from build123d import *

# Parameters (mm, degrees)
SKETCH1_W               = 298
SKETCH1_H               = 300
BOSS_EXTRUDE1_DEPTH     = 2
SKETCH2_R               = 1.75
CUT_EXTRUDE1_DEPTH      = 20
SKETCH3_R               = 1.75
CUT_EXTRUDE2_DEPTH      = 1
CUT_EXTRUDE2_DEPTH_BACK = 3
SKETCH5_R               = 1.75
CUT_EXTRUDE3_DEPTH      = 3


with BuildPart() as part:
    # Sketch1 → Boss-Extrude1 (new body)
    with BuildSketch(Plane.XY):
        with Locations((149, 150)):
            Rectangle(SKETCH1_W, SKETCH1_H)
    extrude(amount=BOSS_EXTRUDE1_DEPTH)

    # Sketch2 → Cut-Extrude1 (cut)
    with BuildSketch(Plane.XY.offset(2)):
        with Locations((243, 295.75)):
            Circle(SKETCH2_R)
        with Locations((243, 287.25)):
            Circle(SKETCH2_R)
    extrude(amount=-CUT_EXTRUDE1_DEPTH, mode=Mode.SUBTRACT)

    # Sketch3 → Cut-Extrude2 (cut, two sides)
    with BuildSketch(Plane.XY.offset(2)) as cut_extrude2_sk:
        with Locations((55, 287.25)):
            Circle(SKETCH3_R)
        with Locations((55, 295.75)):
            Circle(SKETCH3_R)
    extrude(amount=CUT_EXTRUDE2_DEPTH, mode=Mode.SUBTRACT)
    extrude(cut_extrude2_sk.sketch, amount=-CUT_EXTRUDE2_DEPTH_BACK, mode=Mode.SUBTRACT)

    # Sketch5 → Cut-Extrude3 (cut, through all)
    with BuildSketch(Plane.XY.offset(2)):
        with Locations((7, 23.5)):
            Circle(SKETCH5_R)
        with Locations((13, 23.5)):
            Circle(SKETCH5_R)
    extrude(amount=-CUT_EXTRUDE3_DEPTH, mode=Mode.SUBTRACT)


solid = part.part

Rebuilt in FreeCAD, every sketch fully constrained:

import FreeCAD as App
import Part
import Sketcher


def add_polygon(sketch, points):
    """Adds a closed chain of lines whose ends are joined by coincident constraints."""
    first, n = sketch.GeometryCount, len(points)
    for a, b in zip(points, points[1:] + points[:1]):
        sketch.addGeometry(Part.LineSegment(App.Vector(*a, 0), App.Vector(*b, 0)), False)
    for i in range(n):
        sketch.addConstraint(Sketcher.Constraint("Coincident", first + i, 2, first + (i + 1) % n, 1))

doc = App.newDocument("Part")
body = doc.addObject("PartDesign::Body", "Body")

sketch1 = body.newObject("Sketcher::SketchObject", "Sketch")
sketch1.AttachmentSupport = (doc.getObject("XY_Plane"), [""])
sketch1.MapMode = "FlatFace"
add_polygon(sketch1, [(0, 300), (0, 0), (298, 0), (298, 300)])
sketch1.addConstraint([
    Sketcher.Constraint("Vertical", 0),
    Sketcher.Constraint("Horizontal", 1),
    Sketcher.Constraint("Vertical", 2),
    Sketcher.Constraint("Horizontal", 3),
    Sketcher.Constraint("Coincident", 0, 2, -1, 1),
    Sketcher.Constraint("DistanceX", 1, 1, 1, 2, 298.0),
    Sketcher.Constraint("DistanceY", 0, 2, 0, 1, 300.0),
])
pad1 = body.newObject("PartDesign::Pad", "Pad")
pad1.Profile = sketch1
pad1.Length = 2

sketch2 = body.newObject("Sketcher::SketchObject", "Sketch001")
sketch2.AttachmentSupport = (doc.getObject("XY_Plane"), [""])
sketch2.MapMode = "FlatFace"
sketch2.AttachmentOffset = App.Placement(App.Vector(0, 0, 2), App.Rotation())
sketch2.addGeometry([
    Part.Circle(App.Vector(243, 295.8, 0), App.Vector(0, 0, 1), 1.8),
    Part.Circle(App.Vector(243, 287.2, 0), App.Vector(0, 0, 1), 1.8),
], False)
sketch2.addConstraint([
    Sketcher.Constraint("Equal", 0, 1),
    Sketcher.Constraint("Vertical", 0, 3, 1, 3),
    Sketcher.Constraint("Diameter", 0, 3.5),
    Sketcher.Constraint("DistanceX", -1, 1, 0, 3, 243.0),
    Sketcher.Constraint("DistanceY", 1, 3, 0, 3, 8.5),
    Sketcher.Constraint("DistanceY", -1, 1, 0, 3, 295.75),
])
pocket1 = body.newObject("PartDesign::Pocket", "Pocket")
pocket1.Profile = sketch2
pocket1.Length = 20

sketch3 = body.newObject("Sketcher::SketchObject", "Sketch002")
sketch3.AttachmentSupport = (doc.getObject("XY_Plane"), [""])
sketch3.MapMode = "FlatFace"
sketch3.AttachmentOffset = App.Placement(App.Vector(0, 0, 2), App.Rotation())
sketch3.addGeometry([
    Part.Circle(App.Vector(55, 287.2, 0), App.Vector(0, 0, 1), 1.8),
    Part.Circle(App.Vector(55, 295.8, 0), App.Vector(0, 0, 1), 1.8),
], False)
sketch3.addConstraint([
    Sketcher.Constraint("Equal", 0, 1),
    Sketcher.Constraint("Vertical", 0, 3, 1, 3),
    Sketcher.Constraint("Diameter", 0, 3.5),
    Sketcher.Constraint("DistanceX", -1, 1, 0, 3, 55.0),
    Sketcher.Constraint("DistanceY", 0, 3, 1, 3, 8.5),
    Sketcher.Constraint("DistanceY", -1, 1, 0, 3, 287.25),
])
pocket2 = body.newObject("PartDesign::Pocket", "Pocket001")
pocket2.Profile = sketch3
pocket2.Type = "ThroughAll"
pocket2.Midplane = True

sketch4 = body.newObject("Sketcher::SketchObject", "Sketch003")
sketch4.AttachmentSupport = (doc.getObject("XY_Plane"), [""])
sketch4.MapMode = "FlatFace"
sketch4.AttachmentOffset = App.Placement(App.Vector(0, 0, 2), App.Rotation())
sketch4.addGeometry([
    Part.Circle(App.Vector(7, 23.5, 0), App.Vector(0, 0, 1), 1.8),
    Part.Circle(App.Vector(13, 23.5, 0), App.Vector(0, 0, 1), 1.8),
], False)
sketch4.addConstraint([
    Sketcher.Constraint("Equal", 0, 1),
    Sketcher.Constraint("Horizontal", 0, 3, 1, 3),
    Sketcher.Constraint("Diameter", 0, 3.5),
    Sketcher.Constraint("DistanceX", -1, 1, 0, 3, 7.0),
    Sketcher.Constraint("DistanceX", -1, 1, 1, 3, 13.0),
    Sketcher.Constraint("DistanceY", -1, 1, 0, 3, 23.5),
])
pocket3 = body.newObject("PartDesign::Pocket", "Pocket002")
pocket3.Profile = sketch4
pocket3.Type = "ThroughAll"

doc.recompute()
